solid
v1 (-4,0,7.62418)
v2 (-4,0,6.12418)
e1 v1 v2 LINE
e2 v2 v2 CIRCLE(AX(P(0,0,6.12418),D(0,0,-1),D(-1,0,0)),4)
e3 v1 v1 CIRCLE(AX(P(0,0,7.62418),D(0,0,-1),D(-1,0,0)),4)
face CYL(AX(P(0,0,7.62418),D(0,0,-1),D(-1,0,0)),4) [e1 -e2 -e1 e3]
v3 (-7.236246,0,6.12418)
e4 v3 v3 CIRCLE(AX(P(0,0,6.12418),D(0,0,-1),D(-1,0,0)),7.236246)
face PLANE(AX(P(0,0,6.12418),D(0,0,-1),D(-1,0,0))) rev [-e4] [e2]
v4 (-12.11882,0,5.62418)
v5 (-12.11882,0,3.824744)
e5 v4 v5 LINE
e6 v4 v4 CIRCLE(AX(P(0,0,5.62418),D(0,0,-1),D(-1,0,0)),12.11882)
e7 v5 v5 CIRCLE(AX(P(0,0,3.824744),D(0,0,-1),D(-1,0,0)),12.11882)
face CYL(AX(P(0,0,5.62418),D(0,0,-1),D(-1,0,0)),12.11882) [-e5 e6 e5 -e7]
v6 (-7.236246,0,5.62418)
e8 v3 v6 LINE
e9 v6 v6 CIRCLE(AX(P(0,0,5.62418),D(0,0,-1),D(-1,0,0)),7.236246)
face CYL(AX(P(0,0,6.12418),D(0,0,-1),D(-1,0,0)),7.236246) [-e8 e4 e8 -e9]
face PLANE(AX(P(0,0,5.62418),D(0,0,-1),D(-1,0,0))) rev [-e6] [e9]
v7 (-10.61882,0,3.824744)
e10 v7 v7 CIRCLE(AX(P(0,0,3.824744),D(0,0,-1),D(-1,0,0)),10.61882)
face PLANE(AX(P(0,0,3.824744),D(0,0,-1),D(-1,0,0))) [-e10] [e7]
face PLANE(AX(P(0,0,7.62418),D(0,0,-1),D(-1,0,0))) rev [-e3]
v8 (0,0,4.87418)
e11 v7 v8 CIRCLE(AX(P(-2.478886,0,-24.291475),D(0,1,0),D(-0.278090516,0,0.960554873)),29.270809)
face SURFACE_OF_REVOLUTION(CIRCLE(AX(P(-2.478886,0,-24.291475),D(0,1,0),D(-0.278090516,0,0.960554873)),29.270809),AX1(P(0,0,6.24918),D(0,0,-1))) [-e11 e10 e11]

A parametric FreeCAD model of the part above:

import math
import FreeCAD as App
import Part
import Sketcher

V = App.Vector
Q = App.Units.Quantity

doc = App.newDocument("Part")
body = doc.addObject("PartDesign::Body", "Body")

# Sketch on XZ plane
sketch1 = doc.addObject("Sketcher::SketchObject", "Sketch")
body.addObject(sketch1)
sketch1.AttachmentSupport = (doc.XZ_Plane, [""])
sketch1.MapMode = "FlatFace"
sketch1.addGeometry(Part.LineSegment(V(-4, 7.62418, 0), V(-4, 6.12418, 0)), False)
sketch1.addGeometry(Part.LineSegment(V(-4, 6.12418, 0), V(-7.236246, 6.12418, 0)), False)
sketch1.addGeometry(Part.LineSegment(V(-7.236246, 6.12418, 0), V(-7.236246, 5.62418, 0)), False)
sketch1.addGeometry(Part.LineSegment(V(-7.236246, 5.62418, 0), V(-12.11882, 5.62418, 0)), False)
sketch1.addGeometry(Part.LineSegment(V(-12.11882, 5.62418, 0), V(-12.11882, 3.824744, 0)), False)
sketch1.addGeometry(Part.LineSegment(V(-12.11882, 3.824744, 0), V(-10.61882, 3.824744, 0)), False)
sketch1.addGeometry(Part.ArcOfCircle(Part.Circle(V(-2.478886, -24.291475, 0), V(0, 0, 1), 29.270809), math.radians(85.141918), math.radians(106.146274)), False)
sketch1.addGeometry(Part.LineSegment(V(0, 4.87418, 0), V(0, 7.62418, 0)), False)
sketch1.addGeometry(Part.LineSegment(V(0, 7.62418, 0), V(-4, 7.62418, 0)), False)
sketch1.addConstraint(Sketcher.Constraint("Coincident", 0, 2, 1, 1))
sketch1.addConstraint(Sketcher.Constraint("Coincident", 1, 2, 2, 1))
sketch1.addConstraint(Sketcher.Constraint("Coincident", 2, 2, 3, 1))
sketch1.addConstraint(Sketcher.Constraint("Coincident", 3, 2, 4, 1))
sketch1.addConstraint(Sketcher.Constraint("Coincident", 4, 2, 5, 1))
sketch1.addConstraint(Sketcher.Constraint("Coincident", 5, 2, 6, 2))
sketch1.addConstraint(Sketcher.Constraint("Coincident", 6, 1, 7, 1))
sketch1.addConstraint(Sketcher.Constraint("Coincident", 7, 2, 8, 1))
sketch1.addConstraint(Sketcher.Constraint("Coincident", 8, 2, 0, 1))
sketch1.addConstraint(Sketcher.Constraint("Vertical", 0))
sketch1.addConstraint(Sketcher.Constraint("Horizontal", 1))
sketch1.addConstraint(Sketcher.Constraint("Vertical", 2))
sketch1.addConstraint(Sketcher.Constraint("Horizontal", 3))
sketch1.addConstraint(Sketcher.Constraint("Vertical", 4))
sketch1.addConstraint(Sketcher.Constraint("Horizontal", 5))
sketch1.addConstraint(Sketcher.Constraint("Vertical", 7))
sketch1.addConstraint(Sketcher.Constraint("Horizontal", 8))
sketch1.addConstraint(Sketcher.Constraint("PointOnObject", 6, 1, -2))
sketch1.addConstraint(Sketcher.Constraint("Equal", 5, 0))
sketch1.addConstraint(Sketcher.Constraint("DistanceX", 8, 2, 8, 1, Q("4 mm")))
sketch1.addConstraint(Sketcher.Constraint("DistanceX", 5, 1, 5, 2, Q("1.5 mm")))
sketch1.addConstraint(Sketcher.Constraint("DistanceY", 2, 2, 2, 1, Q("0.5 mm")))
sketch1.addConstraint(Sketcher.Constraint("DistanceY", 7, 1, 7, 2, Q("2.75 mm")))
sketch1.addConstraint(Sketcher.Constraint("Radius", 6, Q("29.270809 mm")))
sketch1.addConstraint(Sketcher.Constraint("DistanceX", 1, 2, 1, 1, Q("3.236246 mm")))
sketch1.addConstraint(Sketcher.Constraint("DistanceX", 3, 2, 3, 1, Q("4.882574 mm")))
sketch1.addConstraint(Sketcher.Constraint("DistanceY", 4, 2, 4, 1, Q("1.799436 mm")))
sketch1.addConstraint(Sketcher.Constraint("DistanceY", -1, 1, 0, 2, Q("6.12418 mm")))
revolution = doc.addObject("PartDesign::Revolution", "Revolution")
body.addObject(revolution)
revolution.Profile = sketch1
revolution.ReferenceAxis = (sketch1, ["V_Axis"])
revolution.Angle = 360

doc.recompute()
